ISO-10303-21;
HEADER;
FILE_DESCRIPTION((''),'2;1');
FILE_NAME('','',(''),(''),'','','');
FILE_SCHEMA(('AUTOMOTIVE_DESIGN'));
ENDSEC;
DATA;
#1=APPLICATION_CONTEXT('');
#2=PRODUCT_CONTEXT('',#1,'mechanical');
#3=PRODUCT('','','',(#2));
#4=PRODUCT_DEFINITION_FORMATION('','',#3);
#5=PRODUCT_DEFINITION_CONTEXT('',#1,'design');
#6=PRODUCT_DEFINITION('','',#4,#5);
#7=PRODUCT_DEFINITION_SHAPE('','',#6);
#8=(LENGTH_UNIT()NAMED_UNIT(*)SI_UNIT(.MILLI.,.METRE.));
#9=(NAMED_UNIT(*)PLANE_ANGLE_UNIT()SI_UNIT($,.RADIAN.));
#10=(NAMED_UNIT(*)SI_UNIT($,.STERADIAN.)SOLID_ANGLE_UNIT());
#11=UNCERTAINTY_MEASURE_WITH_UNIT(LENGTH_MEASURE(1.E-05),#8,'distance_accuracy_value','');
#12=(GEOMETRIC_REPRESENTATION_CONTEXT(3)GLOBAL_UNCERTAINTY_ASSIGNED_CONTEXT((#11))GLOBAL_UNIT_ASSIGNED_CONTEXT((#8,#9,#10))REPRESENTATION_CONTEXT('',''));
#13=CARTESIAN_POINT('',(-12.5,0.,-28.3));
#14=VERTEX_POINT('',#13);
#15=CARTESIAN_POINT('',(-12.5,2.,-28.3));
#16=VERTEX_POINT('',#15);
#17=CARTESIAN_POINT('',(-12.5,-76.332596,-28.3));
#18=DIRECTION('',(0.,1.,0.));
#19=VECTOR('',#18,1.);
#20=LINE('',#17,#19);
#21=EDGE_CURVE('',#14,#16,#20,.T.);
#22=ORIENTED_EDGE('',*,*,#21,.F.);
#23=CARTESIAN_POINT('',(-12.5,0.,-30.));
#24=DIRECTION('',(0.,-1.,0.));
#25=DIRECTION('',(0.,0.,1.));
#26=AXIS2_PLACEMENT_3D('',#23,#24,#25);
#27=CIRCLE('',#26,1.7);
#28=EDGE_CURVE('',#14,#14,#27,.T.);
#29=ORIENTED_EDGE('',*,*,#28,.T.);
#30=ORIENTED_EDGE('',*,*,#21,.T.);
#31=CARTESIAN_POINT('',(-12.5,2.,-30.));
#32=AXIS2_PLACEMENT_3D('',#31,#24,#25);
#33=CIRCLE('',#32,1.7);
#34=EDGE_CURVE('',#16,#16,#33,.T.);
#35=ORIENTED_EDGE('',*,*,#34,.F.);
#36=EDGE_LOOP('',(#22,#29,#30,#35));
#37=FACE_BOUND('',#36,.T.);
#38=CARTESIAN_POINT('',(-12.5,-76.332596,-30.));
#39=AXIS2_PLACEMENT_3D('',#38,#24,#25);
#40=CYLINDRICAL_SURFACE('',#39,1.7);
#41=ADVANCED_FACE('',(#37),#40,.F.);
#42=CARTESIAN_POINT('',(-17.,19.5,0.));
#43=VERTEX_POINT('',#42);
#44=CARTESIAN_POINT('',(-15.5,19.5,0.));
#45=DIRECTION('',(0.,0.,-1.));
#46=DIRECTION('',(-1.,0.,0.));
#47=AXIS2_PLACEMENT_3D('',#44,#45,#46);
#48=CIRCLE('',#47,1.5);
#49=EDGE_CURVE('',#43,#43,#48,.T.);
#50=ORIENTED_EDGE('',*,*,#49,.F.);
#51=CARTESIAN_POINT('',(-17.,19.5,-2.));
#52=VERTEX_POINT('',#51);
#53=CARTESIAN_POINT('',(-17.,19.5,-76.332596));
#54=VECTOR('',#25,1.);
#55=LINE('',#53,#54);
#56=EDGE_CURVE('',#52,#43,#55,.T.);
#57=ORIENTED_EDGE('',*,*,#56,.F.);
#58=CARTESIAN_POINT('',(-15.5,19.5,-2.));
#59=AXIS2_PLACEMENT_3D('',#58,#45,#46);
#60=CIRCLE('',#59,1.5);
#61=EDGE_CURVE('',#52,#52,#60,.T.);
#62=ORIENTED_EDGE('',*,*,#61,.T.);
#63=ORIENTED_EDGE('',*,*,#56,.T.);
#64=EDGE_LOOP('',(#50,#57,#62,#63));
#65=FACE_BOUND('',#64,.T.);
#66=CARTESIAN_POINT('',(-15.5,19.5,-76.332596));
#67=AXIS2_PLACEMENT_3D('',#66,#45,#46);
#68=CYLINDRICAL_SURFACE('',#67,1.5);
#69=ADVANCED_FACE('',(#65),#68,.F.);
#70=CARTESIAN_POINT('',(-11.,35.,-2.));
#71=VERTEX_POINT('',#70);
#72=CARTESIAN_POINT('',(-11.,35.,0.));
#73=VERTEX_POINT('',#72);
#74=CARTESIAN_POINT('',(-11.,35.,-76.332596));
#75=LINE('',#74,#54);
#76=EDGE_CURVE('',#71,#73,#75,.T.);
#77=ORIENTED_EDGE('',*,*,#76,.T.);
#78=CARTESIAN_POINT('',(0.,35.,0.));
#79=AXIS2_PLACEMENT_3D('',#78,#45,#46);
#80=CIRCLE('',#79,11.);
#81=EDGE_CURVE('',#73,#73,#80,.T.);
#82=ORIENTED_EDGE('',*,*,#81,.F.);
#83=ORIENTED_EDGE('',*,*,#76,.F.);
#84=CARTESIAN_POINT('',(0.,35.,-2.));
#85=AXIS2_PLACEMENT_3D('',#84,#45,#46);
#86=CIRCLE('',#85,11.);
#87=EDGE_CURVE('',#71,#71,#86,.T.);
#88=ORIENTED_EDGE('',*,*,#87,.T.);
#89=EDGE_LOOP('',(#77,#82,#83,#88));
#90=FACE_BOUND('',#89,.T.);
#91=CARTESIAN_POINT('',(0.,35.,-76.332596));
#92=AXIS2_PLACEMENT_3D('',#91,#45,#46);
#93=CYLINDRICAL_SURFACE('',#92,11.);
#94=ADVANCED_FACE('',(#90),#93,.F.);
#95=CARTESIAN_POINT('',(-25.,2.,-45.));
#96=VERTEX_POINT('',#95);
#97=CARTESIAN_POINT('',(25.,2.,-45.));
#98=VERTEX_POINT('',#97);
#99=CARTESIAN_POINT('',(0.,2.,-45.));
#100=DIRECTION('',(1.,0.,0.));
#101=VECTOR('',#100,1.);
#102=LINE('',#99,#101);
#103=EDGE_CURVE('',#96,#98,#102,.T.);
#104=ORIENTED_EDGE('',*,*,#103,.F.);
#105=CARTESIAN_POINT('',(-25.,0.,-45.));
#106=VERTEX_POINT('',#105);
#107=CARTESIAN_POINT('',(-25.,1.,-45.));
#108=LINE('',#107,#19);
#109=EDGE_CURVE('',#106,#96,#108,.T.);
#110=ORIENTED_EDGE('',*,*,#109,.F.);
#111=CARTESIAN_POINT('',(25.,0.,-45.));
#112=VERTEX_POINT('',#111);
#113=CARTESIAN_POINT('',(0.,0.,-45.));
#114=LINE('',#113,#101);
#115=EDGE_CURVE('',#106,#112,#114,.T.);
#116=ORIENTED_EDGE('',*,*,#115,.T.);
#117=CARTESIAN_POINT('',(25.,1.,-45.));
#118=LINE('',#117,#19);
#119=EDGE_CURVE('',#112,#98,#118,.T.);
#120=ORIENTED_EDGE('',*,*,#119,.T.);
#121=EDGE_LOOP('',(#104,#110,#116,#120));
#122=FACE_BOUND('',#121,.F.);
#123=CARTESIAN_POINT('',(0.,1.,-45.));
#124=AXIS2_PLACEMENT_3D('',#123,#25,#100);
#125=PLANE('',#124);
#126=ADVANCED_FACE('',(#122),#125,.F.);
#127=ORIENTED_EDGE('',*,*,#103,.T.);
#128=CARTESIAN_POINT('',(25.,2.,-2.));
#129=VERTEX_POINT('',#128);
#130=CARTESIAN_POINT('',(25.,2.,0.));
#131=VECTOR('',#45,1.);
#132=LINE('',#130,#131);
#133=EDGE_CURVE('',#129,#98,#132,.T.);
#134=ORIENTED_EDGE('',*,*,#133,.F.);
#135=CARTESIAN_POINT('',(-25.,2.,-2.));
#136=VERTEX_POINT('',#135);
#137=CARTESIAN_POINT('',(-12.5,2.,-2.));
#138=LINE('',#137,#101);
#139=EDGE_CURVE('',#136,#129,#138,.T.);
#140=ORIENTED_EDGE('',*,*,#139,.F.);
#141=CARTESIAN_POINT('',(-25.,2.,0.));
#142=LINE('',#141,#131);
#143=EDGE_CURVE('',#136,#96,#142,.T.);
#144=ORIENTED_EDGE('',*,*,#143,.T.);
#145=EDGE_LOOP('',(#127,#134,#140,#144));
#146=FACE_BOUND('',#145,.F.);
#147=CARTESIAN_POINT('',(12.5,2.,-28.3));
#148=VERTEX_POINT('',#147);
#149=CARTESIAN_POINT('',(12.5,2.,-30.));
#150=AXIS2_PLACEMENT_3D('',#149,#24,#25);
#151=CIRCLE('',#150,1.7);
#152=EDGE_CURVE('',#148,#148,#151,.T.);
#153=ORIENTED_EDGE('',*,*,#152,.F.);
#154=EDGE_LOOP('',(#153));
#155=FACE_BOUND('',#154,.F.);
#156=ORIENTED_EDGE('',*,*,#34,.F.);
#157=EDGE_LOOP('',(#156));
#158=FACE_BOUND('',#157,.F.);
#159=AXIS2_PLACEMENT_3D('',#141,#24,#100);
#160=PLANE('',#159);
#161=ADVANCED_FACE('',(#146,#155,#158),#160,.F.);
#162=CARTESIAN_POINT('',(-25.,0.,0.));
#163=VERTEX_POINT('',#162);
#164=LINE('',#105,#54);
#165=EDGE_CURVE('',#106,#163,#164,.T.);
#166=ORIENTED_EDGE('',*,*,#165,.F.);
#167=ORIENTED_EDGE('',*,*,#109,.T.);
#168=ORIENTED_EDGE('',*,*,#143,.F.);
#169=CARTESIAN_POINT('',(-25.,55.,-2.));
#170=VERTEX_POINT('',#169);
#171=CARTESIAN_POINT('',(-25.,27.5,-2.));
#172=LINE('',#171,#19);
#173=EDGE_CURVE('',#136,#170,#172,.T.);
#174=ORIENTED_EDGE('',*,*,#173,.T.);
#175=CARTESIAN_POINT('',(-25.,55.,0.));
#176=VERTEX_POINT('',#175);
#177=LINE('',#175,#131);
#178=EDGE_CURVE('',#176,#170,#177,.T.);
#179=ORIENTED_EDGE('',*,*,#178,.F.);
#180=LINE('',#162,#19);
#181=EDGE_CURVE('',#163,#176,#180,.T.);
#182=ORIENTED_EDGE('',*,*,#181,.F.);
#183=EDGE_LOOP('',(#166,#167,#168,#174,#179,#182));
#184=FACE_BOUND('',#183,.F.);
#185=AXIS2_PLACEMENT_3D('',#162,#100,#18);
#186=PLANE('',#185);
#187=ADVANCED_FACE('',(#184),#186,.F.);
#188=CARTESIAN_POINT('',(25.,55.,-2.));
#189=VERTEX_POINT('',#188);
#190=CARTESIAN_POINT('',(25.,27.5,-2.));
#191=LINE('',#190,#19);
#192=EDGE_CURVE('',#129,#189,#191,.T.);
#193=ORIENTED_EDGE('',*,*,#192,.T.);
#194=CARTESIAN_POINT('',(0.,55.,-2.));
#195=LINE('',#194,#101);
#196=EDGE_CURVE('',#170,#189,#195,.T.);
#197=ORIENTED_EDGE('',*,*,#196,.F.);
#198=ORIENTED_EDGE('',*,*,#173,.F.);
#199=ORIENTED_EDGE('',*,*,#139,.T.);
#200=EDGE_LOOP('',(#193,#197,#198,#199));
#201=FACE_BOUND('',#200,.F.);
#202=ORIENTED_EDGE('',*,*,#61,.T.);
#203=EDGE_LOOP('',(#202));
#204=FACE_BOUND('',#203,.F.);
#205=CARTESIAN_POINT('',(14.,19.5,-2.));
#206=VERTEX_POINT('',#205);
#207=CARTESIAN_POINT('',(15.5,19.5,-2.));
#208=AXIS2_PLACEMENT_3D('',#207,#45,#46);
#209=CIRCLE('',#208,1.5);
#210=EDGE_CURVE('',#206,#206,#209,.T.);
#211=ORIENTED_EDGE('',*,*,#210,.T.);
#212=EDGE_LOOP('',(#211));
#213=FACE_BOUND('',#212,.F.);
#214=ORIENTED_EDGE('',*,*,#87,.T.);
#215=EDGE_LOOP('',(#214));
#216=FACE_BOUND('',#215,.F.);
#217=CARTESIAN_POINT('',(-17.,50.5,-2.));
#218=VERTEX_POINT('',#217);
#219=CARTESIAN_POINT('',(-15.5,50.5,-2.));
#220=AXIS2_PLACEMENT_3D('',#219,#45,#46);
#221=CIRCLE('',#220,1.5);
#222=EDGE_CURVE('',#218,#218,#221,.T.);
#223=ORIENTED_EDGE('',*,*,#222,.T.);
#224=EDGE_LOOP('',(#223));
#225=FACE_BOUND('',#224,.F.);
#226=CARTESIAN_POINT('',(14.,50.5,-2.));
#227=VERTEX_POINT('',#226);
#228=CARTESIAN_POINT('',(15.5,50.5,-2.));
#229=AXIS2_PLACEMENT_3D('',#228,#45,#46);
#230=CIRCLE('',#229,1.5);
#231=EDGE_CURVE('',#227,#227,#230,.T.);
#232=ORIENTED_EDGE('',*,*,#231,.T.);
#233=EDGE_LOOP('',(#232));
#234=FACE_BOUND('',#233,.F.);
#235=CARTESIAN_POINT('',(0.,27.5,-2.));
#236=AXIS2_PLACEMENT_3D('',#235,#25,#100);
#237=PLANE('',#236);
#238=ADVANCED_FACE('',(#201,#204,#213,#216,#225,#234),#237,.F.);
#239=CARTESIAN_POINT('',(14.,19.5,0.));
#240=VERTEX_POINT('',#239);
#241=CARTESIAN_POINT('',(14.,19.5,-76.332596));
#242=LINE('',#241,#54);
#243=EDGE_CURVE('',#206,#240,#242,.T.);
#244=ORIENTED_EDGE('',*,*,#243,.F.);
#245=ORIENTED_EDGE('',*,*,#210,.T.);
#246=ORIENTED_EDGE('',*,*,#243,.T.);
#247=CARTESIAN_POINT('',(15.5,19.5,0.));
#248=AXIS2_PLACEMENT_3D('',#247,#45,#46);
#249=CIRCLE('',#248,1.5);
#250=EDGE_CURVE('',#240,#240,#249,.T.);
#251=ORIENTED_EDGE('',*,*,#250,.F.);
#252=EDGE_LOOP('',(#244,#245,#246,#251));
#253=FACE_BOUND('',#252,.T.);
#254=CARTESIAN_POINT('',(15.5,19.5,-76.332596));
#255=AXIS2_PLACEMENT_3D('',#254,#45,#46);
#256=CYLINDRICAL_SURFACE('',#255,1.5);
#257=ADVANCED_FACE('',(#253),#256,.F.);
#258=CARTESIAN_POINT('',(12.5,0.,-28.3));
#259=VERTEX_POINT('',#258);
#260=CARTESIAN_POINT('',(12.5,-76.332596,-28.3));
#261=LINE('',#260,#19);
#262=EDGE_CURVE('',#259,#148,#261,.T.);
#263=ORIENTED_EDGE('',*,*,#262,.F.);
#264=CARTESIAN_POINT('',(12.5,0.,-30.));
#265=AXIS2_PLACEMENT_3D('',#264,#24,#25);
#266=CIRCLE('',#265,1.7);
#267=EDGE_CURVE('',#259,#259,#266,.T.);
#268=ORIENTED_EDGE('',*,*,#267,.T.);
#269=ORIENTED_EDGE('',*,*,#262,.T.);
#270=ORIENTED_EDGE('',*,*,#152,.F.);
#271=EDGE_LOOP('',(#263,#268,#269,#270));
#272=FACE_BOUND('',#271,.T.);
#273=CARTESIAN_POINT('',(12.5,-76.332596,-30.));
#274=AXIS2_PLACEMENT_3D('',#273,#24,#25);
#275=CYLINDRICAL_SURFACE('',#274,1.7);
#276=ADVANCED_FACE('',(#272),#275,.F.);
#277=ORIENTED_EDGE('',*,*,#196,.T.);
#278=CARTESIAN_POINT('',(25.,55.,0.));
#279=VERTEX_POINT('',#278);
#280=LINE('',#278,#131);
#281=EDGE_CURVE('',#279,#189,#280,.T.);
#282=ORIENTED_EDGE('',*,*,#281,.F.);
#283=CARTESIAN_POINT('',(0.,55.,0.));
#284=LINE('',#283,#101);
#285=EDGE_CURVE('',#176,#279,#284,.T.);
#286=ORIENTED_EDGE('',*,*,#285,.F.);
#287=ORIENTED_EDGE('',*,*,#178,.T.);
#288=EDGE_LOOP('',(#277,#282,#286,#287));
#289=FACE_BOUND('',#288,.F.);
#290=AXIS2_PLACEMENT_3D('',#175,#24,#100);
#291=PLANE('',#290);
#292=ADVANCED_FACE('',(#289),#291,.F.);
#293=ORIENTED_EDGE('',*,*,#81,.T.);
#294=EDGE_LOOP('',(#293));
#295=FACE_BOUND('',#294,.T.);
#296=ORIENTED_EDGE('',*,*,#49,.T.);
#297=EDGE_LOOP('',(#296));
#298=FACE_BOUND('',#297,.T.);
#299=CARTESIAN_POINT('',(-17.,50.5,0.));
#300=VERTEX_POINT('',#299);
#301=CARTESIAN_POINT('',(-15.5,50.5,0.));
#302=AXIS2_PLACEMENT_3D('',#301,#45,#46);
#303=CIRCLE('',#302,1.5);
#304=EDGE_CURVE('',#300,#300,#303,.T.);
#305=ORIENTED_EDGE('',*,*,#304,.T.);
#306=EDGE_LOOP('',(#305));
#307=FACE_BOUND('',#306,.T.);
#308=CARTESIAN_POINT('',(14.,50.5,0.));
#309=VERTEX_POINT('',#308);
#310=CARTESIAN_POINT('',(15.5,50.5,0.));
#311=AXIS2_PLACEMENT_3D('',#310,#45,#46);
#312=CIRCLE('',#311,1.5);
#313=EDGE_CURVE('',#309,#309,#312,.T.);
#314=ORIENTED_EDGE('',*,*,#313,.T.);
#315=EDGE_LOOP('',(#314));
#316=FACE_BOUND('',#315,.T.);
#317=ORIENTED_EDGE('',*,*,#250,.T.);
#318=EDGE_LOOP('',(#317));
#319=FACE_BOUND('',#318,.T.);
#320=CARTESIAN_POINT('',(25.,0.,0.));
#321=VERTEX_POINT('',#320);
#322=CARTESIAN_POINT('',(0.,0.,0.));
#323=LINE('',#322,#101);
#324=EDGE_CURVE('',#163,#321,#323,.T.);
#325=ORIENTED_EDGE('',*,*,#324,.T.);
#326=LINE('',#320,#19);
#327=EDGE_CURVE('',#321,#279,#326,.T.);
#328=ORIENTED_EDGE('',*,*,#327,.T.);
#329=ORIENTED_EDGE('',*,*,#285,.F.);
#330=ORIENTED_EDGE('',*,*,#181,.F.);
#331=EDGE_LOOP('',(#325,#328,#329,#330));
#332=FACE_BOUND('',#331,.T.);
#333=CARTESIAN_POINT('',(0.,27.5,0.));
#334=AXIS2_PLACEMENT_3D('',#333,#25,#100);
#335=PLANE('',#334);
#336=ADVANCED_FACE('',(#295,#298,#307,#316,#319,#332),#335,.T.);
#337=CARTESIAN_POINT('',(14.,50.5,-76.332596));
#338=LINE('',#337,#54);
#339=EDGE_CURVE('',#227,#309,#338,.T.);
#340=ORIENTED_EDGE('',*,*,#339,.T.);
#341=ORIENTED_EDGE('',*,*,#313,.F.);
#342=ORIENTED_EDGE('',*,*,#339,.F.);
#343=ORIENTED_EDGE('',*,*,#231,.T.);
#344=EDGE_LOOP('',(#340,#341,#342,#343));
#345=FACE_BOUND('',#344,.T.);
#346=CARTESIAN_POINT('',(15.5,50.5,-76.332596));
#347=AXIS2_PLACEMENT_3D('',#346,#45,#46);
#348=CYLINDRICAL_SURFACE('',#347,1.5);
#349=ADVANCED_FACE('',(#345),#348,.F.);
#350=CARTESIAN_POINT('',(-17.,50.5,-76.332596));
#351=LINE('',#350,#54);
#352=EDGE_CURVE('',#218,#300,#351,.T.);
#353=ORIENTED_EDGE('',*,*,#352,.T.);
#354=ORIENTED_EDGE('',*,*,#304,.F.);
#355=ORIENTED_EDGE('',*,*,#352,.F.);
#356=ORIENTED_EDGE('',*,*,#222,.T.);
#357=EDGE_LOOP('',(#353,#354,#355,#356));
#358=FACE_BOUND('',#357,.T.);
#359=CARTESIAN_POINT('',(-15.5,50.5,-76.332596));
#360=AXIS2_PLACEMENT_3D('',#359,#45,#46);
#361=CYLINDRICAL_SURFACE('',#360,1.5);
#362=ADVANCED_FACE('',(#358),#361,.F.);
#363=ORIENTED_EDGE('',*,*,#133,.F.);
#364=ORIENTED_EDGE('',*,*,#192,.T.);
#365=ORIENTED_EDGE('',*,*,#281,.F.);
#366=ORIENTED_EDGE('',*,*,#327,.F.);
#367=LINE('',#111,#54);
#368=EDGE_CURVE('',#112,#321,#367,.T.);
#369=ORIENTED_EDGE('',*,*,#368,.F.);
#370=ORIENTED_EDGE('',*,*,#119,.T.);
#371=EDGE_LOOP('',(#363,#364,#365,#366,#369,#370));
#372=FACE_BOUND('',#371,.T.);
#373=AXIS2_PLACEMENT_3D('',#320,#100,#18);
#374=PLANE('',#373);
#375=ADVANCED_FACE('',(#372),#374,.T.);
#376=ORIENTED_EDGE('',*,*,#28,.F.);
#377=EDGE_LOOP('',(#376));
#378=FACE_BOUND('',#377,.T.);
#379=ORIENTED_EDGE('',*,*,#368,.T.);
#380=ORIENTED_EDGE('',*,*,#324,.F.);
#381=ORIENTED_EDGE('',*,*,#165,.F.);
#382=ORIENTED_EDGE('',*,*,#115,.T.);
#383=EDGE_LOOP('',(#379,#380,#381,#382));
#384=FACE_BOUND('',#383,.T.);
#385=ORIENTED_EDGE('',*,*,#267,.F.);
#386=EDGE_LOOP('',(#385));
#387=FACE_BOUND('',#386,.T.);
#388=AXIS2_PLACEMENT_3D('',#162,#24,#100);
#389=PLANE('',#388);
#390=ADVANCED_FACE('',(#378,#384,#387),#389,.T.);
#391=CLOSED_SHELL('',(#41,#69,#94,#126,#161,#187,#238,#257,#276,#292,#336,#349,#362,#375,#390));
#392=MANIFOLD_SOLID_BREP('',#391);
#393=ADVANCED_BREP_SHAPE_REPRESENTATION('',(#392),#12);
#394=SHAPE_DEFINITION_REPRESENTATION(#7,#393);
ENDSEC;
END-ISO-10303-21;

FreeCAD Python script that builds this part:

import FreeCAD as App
import Part
import Sketcher


def add_polygon(sketch, points):
    """Adds a closed chain of lines whose ends are joined by coincident constraints."""
    first, n = sketch.GeometryCount, len(points)
    for a, b in zip(points, points[1:] + points[:1]):
        sketch.addGeometry(Part.LineSegment(App.Vector(*a, 0), App.Vector(*b, 0)), False)
    for i in range(n):
        sketch.addConstraint(Sketcher.Constraint("Coincident", first + i, 2, first + (i + 1) % n, 1))

doc = App.newDocument("Part")
body = doc.addObject("PartDesign::Body", "Body")

sketch1 = doc.addObject("Sketcher::SketchObject", "Sketch")
body.addObject(sketch1)
sketch1.AttachmentSupport = (doc.XY_Plane, [""])
sketch1.MapMode = "FlatFace"
add_polygon(sketch1, [(-25, 55), (-25, 0), (25, 0), (25, 55)])
sketch1.addConstraint(Sketcher.Constraint("Vertical", 0))
sketch1.addConstraint(Sketcher.Constraint("Horizontal", 1))
sketch1.addConstraint(Sketcher.Constraint("Vertical", 2))
sketch1.addConstraint(Sketcher.Constraint("Horizontal", 3))
sketch1.addConstraint(Sketcher.Constraint("Symmetric", 0, 2, 1, 2, -1, 1))
sketch1.addConstraint(Sketcher.Constraint("DistanceX", 1, 1, 1, 2, 50.0))
sketch1.addConstraint(Sketcher.Constraint("DistanceY", 0, 2, 0, 1, 55.0))
pad1 = doc.addObject("PartDesign::Pad", "Pad")
body.addObject(pad1)
pad1.Profile = sketch1
pad1.Length = 2
pad1.Reversed = True

sketch2 = doc.addObject("Sketcher::SketchObject", "Sketch001")
body.addObject(sketch2)
sketch2.AttachmentSupport = (doc.XY_Plane, [""])
sketch2.MapMode = "FlatFace"
add_polygon(sketch2, [(-25, 2), (-25, 0), (25, 0), (25, 2)])
sketch2.addConstraint(Sketcher.Constraint("Vertical", 0))
sketch2.addConstraint(Sketcher.Constraint("Horizontal", 1))
sketch2.addConstraint(Sketcher.Constraint("Vertical", 2))
sketch2.addConstraint(Sketcher.Constraint("Horizontal", 3))
sketch2.addConstraint(Sketcher.Constraint("Symmetric", 0, 2, 1, 2, -1, 1))
sketch2.addConstraint(Sketcher.Constraint("DistanceX", 1, 1, 1, 2, 50.0))
sketch2.addConstraint(Sketcher.Constraint("DistanceY", 0, 2, 0, 1, 2.0))
pad2 = doc.addObject("PartDesign::Pad", "Pad001")
body.addObject(pad2)
pad2.Profile = sketch2
pad2.Length = 45
pad2.Reversed = True

sketch3 = doc.addObject("Sketcher::SketchObject", "Sketch002")
body.addObject(sketch3)
sketch3.AttachmentSupport = (doc.XY_Plane, [""])
sketch3.MapMode = "FlatFace"
sketch3.addGeometry(Part.Circle(App.Vector(-15.5, 19.5, 0), App.Vector(0, 0, 1), 1.5), False)
sketch3.addGeometry(Part.Circle(App.Vector(-15.5, 50.5, 0), App.Vector(0, 0, 1), 1.5), False)
sketch3.addGeometry(Part.Circle(App.Vector(15.5, 19.5, 0), App.Vector(0, 0, 1), 1.5), False)
sketch3.addGeometry(Part.Circle(App.Vector(15.5, 50.5, 0), App.Vector(0, 0, 1), 1.5), False)
sketch3.addConstraint(Sketcher.Constraint("Equal", 0, 1))
sketch3.addConstraint(Sketcher.Constraint("Equal", 1, 2))
sketch3.addConstraint(Sketcher.Constraint("Equal", 2, 3))
sketch3.addConstraint(Sketcher.Constraint("Symmetric", 0, 3, 2, 3, -2))
sketch3.addConstraint(Sketcher.Constraint("Symmetric", 1, 3, 3, 3, -2))
sketch3.addConstraint(Sketcher.Constraint("Vertical", 0, 3, 1, 3))
sketch3.addConstraint(Sketcher.Constraint("Diameter", 0, 3.0))
sketch3.addConstraint(Sketcher.Constraint("DistanceY", 0, 3, 1, 3, 31.0))
sketch3.addConstraint(Sketcher.Constraint("DistanceX", 0, 3, 2, 3, 31.0))
sketch3.addConstraint(Sketcher.Constraint("DistanceY", -1, 1, 0, 3, 19.5))
pocket1 = doc.addObject("PartDesign::Pocket", "Pocket")
body.addObject(pocket1)
pocket1.Profile = sketch3
pocket1.Type = "ThroughAll"
pocket1.Midplane = True

sketch4 = doc.addObject("Sketcher::SketchObject", "Sketch003")
body.addObject(sketch4)
sketch4.AttachmentSupport = (doc.XY_Plane, [""])
sketch4.MapMode = "FlatFace"
sketch4.addGeometry(Part.Circle(App.Vector(0, 35, 0), App.Vector(0, 0, 1), 11), False)
sketch4.addConstraint(Sketcher.Constraint("PointOnObject", 0, 3, -2))
sketch4.addConstraint(Sketcher.Constraint("Diameter", 0, 22.0))
sketch4.addConstraint(Sketcher.Constraint("DistanceY", -1, 1, 0, 3, 35.0))
pocket2 = doc.addObject("PartDesign::Pocket", "Pocket001")
body.addObject(pocket2)
pocket2.Profile = sketch4
pocket2.Type = "ThroughAll"
pocket2.Midplane = True

sketch5 = doc.addObject("Sketcher::SketchObject", "Sketch004")
body.addObject(sketch5)
sketch5.AttachmentSupport = (doc.XZ_Plane, [""])
sketch5.MapMode = "FlatFace"
sketch5.addGeometry(Part.Circle(App.Vector(-12.5, -30, 0), App.Vector(0, 0, 1), 1.7), False)
sketch5.addGeometry(Part.Circle(App.Vector(12.5, -30, 0), App.Vector(0, 0, 1), 1.7), False)
sketch5.addConstraint(Sketcher.Constraint("Equal", 0, 1))
sketch5.addConstraint(Sketcher.Constraint("Symmetric", 0, 3, 1, 3, -2))
sketch5.addConstraint(Sketcher.Constraint("Diameter", 0, 3.4))
sketch5.addConstraint(Sketcher.Constraint("DistanceY", 0, 3, -1, 1, 30.0))
sketch5.addConstraint(Sketcher.Constraint("DistanceX", 0, 3, 1, 3, 25.0))
pocket3 = doc.addObject("PartDesign::Pocket", "Pocket002")
body.addObject(pocket3)
pocket3.Profile = sketch5
pocket3.Type = "ThroughAll"
pocket3.Midplane = True

doc.recompute()
